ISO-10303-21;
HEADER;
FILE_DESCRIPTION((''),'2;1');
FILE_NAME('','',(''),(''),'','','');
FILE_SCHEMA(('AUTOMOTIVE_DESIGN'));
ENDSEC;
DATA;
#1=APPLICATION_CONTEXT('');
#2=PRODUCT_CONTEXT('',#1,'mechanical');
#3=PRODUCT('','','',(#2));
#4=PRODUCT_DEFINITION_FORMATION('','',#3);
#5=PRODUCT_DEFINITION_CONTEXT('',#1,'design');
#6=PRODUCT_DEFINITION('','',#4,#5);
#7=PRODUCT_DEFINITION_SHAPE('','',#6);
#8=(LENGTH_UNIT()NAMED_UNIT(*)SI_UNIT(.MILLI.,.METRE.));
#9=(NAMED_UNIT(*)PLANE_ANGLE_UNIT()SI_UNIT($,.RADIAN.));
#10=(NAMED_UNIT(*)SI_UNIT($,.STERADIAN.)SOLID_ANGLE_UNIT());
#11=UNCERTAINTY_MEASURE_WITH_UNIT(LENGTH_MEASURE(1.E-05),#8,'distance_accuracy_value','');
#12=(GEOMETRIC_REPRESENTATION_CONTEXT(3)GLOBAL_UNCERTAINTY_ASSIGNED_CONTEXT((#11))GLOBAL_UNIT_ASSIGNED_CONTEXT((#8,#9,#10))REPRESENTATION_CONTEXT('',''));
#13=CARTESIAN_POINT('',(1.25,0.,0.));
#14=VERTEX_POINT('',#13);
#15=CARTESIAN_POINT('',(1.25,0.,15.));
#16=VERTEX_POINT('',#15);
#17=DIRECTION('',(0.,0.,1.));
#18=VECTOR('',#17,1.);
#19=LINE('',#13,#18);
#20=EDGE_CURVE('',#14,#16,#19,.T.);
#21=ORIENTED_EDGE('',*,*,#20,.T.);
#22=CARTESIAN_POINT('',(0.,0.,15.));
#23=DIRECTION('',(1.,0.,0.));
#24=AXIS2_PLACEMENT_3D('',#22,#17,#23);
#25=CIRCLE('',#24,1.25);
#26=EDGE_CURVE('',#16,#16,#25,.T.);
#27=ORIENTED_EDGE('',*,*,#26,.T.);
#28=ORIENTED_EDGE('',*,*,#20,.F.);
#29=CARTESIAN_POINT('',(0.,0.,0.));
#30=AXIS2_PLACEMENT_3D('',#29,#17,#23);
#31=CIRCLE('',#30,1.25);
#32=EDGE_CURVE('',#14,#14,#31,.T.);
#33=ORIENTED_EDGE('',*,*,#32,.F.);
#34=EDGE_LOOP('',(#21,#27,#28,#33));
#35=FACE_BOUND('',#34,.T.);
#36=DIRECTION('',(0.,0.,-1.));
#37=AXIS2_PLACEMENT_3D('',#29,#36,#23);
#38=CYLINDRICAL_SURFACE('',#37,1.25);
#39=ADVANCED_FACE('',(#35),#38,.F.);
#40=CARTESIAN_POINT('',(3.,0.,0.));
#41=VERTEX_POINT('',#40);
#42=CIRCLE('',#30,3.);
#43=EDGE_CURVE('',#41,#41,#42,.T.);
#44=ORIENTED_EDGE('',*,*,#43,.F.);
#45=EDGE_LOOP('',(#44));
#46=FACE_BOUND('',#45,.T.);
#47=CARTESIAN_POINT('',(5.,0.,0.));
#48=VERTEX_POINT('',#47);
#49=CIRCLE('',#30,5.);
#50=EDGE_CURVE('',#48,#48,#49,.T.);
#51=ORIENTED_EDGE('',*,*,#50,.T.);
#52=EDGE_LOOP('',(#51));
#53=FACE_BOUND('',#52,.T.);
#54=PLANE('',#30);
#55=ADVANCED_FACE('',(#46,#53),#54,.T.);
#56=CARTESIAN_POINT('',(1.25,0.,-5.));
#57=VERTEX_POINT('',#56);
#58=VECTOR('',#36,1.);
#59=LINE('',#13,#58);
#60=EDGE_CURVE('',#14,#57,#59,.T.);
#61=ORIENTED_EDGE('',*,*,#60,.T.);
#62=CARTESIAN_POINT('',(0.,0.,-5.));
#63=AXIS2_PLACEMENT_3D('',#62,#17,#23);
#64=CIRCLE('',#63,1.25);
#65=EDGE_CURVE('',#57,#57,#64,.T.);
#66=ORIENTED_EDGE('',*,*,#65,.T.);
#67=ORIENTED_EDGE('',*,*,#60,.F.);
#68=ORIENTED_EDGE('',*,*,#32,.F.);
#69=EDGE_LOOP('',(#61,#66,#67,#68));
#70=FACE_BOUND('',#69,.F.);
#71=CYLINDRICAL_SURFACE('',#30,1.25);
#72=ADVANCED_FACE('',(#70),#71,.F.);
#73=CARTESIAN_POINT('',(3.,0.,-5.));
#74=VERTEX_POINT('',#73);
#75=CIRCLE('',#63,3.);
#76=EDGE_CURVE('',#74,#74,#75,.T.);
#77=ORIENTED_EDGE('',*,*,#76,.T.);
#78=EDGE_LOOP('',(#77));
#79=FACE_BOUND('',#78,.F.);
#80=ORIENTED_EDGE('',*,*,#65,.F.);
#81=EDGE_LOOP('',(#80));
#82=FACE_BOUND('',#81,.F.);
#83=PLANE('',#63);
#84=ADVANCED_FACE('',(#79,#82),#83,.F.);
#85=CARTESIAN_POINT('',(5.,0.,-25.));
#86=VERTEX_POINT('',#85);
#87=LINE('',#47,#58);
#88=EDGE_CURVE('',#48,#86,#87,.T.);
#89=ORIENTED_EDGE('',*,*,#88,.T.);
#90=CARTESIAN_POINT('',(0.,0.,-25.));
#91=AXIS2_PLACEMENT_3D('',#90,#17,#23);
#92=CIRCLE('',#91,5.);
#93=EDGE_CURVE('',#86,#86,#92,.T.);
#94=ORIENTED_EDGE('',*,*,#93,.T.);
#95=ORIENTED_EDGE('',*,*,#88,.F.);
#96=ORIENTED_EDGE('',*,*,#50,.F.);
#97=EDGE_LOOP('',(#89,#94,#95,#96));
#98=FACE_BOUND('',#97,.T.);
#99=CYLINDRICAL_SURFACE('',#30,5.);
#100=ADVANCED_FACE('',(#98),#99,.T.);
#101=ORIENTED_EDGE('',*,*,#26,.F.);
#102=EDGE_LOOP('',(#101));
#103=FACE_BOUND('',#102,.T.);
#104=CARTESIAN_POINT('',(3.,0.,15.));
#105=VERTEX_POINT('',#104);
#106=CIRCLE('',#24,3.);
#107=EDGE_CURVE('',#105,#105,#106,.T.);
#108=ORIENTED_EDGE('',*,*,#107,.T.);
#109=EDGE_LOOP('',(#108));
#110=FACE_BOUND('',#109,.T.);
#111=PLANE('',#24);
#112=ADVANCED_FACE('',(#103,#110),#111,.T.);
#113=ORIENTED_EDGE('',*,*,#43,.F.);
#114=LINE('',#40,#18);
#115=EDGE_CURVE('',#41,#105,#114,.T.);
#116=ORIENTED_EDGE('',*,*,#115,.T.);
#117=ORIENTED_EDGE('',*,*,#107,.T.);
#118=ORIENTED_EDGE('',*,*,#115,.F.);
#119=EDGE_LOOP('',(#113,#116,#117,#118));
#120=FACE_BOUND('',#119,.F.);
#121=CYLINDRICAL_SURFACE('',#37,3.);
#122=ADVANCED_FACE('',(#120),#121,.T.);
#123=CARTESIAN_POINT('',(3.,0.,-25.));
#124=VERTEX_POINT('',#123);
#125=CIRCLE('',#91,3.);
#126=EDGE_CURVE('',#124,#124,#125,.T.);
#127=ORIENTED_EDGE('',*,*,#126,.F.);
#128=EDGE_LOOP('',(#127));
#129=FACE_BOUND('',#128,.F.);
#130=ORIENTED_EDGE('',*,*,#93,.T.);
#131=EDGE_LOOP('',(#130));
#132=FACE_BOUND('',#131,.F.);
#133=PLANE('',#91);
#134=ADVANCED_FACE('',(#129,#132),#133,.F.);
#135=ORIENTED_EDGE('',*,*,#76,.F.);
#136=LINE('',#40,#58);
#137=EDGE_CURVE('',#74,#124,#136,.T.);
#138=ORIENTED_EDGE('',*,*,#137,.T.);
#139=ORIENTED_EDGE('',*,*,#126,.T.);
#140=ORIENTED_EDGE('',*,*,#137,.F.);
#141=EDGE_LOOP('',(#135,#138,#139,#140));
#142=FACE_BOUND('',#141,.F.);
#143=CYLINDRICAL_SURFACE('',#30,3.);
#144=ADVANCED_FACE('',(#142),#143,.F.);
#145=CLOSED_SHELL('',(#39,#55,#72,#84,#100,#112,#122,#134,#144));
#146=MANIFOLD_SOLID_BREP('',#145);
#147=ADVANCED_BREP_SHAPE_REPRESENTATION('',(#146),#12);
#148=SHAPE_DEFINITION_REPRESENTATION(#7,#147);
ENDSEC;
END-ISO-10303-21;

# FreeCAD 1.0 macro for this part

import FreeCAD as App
import Part
import Sketcher

V = App.Vector
Q = App.Units.Quantity

doc = App.newDocument("Part")
params = doc.addObject("Spreadsheet::Sheet", "Params")
for row, (alias, value) in enumerate([
    ("sketch1_diameter", "10 mm"),
    ("sketch1_diameter2", "6 mm"),
    ("pad1_length", "25 mm"),
    ("sketch2_diameter", "6 mm"),
    ("sketch2_diameter2", "2.5 mm"),
    ("pad2_length", "15 mm"),
    ("pad2_length2", "5 mm"),
], start=1):
    params.set(f"A{row}", alias)
    params.set(f"B{row}", "=" + value)
    params.setAlias(f"B{row}", alias)

body = doc.addObject("PartDesign::Body", "Body")

# Sketch on XY plane
sketch1 = body.newObject("Sketcher::SketchObject", "Sketch")
sketch1.AttachmentSupport = (doc.getObject("XY_Plane"), [""])
sketch1.MapMode = "FlatFace"
sketch1.addGeometry([
    Part.Circle(V(0, 0, 0), V(0, 0, 1), 5),
    Part.Circle(V(0, 0, 0), V(0, 0, 1), 3),
], False)
sketch1.addConstraint([
    Sketcher.Constraint("Coincident", 0, 3, -1, 1),
    Sketcher.Constraint("Coincident", 1, 3, -1, 1),
    Sketcher.Constraint("Diameter", 0, Q("10 mm")),
    Sketcher.Constraint("Diameter", 1, Q("6 mm")),
])
sketch1.setExpression("Constraints[2]", "Params.sketch1_diameter")
sketch1.setExpression("Constraints[3]", "Params.sketch1_diameter2")
pad1 = body.newObject("PartDesign::Pad", "Pad")
pad1.Profile = sketch1
pad1.setExpression("Length", "Params.pad1_length")
pad1.Reversed = True

# Sketch on XY plane
sketch2 = body.newObject("Sketcher::SketchObject", "Sketch001")
sketch2.AttachmentSupport = (doc.getObject("XY_Plane"), [""])
sketch2.MapMode = "FlatFace"
sketch2.addGeometry([
    Part.Circle(V(0, 0, 0), V(0, 0, 1), 3),
    Part.Circle(V(0, 0, 0), V(0, 0, 1), 1.2),
], False)
sketch2.addConstraint([
    Sketcher.Constraint("Coincident", 0, 3, -1, 1),
    Sketcher.Constraint("Coincident", 1, 3, -1, 1),
    Sketcher.Constraint("Diameter", 0, Q("6 mm")),
    Sketcher.Constraint("Diameter", 1, Q("2.5 mm")),
])
sketch2.setExpression("Constraints[2]", "Params.sketch2_diameter")
sketch2.setExpression("Constraints[3]", "Params.sketch2_diameter2")
pad2 = body.newObject("PartDesign::Pad", "Pad001")
pad2.Profile = sketch2
pad2.Type = "TwoLengths"
pad2.setExpression("Length", "Params.pad2_length")
pad2.setExpression("Length2", "Params.pad2_length2")

doc.recompute()
